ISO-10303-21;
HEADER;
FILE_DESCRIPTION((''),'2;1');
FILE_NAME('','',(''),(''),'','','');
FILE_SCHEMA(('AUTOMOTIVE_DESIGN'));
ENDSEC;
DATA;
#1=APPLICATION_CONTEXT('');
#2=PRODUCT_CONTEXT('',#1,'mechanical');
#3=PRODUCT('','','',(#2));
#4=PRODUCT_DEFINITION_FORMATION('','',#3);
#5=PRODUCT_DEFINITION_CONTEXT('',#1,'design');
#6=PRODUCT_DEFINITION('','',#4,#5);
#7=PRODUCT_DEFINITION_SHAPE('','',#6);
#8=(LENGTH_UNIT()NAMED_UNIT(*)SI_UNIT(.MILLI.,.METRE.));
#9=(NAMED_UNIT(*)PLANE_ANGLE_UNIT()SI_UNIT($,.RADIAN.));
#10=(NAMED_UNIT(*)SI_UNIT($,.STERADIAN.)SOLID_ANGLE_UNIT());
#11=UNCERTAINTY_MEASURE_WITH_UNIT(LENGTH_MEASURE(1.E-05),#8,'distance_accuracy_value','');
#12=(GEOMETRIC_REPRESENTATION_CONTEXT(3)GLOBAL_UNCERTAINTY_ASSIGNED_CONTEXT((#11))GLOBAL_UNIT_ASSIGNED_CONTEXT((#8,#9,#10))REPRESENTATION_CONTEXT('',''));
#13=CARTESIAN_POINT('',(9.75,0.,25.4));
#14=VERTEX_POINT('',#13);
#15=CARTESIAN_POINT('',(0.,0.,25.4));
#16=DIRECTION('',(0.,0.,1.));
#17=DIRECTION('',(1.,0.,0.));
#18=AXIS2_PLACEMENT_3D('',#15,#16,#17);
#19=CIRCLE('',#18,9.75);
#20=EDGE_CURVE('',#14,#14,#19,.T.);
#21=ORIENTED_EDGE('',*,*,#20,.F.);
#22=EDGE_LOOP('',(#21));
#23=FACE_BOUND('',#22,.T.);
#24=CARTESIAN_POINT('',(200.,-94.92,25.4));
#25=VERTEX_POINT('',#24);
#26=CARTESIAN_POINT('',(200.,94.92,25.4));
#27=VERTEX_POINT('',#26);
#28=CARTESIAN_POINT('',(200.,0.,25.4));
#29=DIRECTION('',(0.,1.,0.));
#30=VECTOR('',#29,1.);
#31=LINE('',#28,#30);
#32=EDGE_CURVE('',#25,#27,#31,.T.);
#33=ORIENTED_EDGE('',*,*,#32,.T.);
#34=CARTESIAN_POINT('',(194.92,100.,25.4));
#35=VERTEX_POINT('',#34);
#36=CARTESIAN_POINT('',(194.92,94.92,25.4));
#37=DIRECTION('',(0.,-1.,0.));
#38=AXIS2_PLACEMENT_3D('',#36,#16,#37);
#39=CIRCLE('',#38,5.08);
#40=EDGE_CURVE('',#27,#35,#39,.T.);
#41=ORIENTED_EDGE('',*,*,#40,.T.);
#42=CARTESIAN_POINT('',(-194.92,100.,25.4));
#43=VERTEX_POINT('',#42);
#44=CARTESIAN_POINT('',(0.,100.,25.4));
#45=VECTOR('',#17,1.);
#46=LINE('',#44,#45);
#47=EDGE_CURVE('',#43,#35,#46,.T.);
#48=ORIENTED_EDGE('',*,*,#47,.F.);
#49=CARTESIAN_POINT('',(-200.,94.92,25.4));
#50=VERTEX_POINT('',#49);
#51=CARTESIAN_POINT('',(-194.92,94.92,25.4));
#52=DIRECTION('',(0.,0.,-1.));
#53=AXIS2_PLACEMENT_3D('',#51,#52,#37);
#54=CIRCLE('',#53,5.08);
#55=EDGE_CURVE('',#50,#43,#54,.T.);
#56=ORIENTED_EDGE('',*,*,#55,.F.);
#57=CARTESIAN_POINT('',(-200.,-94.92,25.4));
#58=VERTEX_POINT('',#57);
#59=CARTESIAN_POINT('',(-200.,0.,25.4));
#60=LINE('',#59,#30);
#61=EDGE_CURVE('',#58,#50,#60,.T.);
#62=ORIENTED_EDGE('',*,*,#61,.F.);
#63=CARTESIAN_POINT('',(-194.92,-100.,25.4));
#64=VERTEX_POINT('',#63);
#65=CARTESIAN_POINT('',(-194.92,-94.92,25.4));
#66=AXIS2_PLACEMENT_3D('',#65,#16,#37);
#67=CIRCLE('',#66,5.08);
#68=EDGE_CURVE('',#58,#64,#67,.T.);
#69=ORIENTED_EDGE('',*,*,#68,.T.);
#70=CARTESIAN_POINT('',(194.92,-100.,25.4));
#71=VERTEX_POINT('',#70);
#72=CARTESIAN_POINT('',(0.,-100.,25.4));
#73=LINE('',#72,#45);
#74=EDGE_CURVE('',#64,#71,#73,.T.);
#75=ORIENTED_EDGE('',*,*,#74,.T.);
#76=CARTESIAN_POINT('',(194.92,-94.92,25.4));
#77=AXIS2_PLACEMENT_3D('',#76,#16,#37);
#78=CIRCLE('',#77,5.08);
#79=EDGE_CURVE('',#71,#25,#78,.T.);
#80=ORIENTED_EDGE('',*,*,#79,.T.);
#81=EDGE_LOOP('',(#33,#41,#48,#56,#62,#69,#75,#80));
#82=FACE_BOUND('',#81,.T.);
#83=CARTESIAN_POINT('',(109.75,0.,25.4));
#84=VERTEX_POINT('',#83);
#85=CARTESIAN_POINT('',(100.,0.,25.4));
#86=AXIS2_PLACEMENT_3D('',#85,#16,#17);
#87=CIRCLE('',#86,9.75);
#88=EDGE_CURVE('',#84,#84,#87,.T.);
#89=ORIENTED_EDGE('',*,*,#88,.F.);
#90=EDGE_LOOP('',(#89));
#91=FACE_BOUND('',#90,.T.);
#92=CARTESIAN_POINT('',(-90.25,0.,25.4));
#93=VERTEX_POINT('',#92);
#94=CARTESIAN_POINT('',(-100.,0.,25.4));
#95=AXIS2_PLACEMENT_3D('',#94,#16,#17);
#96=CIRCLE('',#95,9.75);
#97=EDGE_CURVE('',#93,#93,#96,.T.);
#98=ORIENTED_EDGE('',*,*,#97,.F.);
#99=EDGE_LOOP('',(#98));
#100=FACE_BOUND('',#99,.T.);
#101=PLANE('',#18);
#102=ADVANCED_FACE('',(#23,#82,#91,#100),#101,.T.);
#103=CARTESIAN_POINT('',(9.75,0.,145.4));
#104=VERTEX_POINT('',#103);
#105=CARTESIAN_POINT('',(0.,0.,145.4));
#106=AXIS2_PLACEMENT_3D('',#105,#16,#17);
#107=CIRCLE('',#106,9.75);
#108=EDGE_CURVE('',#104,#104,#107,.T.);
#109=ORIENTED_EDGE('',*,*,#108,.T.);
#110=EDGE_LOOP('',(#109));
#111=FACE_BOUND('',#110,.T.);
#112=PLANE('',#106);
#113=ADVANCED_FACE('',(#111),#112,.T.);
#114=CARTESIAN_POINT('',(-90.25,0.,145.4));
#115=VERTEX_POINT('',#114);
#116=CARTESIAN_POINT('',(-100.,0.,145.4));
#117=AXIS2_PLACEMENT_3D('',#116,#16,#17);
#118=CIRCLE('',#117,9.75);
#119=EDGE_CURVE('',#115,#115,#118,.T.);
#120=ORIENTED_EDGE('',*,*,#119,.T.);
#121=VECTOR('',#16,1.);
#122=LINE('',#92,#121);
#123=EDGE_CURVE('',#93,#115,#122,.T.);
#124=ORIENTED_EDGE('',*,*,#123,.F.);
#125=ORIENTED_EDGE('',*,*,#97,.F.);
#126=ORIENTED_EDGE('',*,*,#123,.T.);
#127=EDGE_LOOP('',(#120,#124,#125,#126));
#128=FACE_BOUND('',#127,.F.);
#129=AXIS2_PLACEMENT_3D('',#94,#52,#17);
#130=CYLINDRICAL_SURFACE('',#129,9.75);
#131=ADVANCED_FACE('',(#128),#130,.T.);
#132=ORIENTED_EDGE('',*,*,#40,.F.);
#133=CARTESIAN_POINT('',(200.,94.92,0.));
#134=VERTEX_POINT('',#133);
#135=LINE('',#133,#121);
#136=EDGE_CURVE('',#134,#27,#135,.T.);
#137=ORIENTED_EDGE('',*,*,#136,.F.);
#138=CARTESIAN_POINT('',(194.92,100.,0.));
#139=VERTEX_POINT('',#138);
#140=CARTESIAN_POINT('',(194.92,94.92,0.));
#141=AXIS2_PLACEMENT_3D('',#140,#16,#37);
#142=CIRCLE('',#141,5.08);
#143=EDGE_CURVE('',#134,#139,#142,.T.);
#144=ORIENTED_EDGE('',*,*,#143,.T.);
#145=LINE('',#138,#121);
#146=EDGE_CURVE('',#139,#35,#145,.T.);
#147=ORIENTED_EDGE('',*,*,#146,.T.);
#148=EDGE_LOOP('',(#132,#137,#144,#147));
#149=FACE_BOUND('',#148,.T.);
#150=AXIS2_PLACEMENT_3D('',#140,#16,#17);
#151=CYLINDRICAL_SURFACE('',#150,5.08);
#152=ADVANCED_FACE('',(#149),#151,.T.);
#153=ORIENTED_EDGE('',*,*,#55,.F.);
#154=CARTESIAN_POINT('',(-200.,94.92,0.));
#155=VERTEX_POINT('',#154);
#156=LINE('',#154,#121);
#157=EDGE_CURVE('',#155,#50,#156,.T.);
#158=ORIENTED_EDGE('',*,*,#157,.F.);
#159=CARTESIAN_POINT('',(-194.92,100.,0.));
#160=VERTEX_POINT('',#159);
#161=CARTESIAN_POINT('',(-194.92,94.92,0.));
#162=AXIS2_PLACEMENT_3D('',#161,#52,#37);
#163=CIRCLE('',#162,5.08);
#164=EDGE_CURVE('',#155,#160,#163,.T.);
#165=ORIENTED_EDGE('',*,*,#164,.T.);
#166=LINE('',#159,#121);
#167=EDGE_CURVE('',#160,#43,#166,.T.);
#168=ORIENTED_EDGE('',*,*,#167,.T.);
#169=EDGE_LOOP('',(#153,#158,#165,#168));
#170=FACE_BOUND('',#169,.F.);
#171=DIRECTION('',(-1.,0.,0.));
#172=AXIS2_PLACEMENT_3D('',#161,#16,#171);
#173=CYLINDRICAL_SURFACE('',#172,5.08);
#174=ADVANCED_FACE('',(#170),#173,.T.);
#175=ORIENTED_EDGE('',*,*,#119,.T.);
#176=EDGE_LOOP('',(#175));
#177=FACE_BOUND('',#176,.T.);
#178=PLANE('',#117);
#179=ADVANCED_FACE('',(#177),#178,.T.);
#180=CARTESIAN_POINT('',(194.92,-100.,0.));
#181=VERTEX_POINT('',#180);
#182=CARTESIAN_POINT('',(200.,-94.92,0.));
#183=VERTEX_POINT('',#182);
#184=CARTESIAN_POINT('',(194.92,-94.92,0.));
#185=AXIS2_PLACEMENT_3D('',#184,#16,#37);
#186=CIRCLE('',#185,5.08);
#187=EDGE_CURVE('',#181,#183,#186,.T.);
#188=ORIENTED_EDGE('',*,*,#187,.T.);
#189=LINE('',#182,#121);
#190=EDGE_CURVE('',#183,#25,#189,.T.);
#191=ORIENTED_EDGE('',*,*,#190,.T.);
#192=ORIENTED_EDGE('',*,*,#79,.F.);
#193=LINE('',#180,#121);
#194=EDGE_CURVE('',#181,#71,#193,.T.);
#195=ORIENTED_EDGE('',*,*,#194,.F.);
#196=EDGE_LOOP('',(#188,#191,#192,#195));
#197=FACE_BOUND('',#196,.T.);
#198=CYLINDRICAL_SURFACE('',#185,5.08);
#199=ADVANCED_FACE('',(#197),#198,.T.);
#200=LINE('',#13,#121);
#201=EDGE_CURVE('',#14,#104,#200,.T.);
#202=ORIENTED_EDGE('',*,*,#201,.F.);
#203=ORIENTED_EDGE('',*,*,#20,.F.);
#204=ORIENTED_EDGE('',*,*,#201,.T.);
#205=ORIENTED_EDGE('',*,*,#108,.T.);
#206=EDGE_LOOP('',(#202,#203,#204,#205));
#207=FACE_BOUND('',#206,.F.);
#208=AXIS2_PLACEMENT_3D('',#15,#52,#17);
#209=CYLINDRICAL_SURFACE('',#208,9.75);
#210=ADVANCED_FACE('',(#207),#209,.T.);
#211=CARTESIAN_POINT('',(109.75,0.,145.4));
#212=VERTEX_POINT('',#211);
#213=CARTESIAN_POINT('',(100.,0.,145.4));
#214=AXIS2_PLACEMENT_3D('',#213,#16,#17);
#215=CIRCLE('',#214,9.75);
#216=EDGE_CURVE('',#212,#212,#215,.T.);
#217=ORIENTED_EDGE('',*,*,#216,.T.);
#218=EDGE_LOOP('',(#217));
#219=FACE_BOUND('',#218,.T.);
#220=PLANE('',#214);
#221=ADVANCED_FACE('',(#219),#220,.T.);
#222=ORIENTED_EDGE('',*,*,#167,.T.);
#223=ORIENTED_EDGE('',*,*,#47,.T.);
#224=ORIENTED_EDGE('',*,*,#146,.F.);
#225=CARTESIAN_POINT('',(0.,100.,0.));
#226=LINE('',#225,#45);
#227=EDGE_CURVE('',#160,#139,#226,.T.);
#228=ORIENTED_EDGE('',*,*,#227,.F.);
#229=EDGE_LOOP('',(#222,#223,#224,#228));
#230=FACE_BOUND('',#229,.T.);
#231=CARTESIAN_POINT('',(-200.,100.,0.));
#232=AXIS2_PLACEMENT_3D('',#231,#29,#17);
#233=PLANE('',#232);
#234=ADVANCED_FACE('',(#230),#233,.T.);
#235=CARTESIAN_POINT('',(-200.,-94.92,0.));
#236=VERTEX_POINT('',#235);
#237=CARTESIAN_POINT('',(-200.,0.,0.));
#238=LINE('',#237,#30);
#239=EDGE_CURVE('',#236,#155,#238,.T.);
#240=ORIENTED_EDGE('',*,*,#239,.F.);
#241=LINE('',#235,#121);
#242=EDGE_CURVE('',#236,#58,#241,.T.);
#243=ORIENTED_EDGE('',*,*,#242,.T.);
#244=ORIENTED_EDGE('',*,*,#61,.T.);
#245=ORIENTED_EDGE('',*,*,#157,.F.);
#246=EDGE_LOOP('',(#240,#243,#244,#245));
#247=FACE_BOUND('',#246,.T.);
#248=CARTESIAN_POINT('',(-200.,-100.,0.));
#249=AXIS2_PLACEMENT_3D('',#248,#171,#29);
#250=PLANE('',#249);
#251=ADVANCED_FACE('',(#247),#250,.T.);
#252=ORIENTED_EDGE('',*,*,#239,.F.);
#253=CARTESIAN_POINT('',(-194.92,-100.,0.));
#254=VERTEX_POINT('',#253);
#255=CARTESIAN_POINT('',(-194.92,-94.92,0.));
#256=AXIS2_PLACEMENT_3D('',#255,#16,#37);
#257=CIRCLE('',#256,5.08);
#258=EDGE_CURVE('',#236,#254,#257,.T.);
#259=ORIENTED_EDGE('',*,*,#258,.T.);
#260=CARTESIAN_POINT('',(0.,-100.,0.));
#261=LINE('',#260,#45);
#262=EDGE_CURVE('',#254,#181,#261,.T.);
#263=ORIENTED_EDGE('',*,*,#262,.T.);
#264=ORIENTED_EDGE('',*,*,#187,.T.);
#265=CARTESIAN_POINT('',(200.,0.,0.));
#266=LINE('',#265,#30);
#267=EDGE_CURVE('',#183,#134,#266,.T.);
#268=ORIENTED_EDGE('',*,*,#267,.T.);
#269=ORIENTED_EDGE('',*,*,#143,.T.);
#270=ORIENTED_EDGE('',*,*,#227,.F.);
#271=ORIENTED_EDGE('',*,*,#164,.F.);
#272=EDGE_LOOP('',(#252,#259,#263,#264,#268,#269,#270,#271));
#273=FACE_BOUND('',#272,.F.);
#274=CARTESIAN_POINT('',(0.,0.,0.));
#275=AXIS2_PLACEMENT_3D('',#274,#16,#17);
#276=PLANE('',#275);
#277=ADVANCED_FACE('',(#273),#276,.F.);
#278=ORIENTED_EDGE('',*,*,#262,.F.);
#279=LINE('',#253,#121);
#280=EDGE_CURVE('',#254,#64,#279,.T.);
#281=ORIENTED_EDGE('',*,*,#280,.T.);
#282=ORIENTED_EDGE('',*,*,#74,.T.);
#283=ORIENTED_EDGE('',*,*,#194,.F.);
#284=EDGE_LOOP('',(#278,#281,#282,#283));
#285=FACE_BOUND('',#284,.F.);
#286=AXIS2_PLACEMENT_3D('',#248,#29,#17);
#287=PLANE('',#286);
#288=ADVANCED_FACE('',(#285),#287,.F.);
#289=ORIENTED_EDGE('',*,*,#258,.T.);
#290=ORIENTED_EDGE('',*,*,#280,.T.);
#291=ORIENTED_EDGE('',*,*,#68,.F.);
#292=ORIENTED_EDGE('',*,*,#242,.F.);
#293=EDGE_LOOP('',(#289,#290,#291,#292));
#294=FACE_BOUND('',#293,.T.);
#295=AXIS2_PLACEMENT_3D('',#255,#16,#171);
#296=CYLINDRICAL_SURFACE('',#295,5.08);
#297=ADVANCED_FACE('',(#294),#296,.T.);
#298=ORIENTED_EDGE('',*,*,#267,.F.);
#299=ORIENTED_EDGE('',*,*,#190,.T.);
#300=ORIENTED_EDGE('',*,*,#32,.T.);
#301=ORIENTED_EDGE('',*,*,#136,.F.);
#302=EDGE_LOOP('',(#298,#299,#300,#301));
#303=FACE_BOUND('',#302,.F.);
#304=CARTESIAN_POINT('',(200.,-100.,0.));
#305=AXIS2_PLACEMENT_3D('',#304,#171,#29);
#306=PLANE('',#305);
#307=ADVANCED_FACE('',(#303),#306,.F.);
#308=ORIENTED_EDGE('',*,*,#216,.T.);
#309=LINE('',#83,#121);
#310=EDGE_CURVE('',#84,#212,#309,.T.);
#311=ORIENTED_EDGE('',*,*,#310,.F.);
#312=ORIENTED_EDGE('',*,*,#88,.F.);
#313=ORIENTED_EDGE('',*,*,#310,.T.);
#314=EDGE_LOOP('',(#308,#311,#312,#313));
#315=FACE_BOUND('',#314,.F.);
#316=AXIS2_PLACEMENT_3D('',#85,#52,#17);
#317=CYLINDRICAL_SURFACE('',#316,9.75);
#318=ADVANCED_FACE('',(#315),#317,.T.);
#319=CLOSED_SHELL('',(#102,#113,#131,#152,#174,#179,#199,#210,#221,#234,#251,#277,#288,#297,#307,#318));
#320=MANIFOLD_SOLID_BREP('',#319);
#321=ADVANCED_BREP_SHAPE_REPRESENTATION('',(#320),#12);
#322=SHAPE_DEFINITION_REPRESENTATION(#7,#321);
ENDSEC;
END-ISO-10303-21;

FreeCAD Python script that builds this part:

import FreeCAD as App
import Part
import Sketcher
from FreeCAD import Vector


def edges_at(feature, points):
    """Names of the edges that pass closest to the given points."""
    edges = feature.Shape.Edges
    near = lambda p: min(range(len(edges)), key=lambda i: edges[i].distToShape(Part.Vertex(*p))[0])
    return sorted({f"Edge{near(p) + 1}" for p in points})

doc = App.newDocument("Part")
body = doc.addObject("PartDesign::Body", "Body")

sketch1 = body.newObject("Sketcher::SketchObject", "Sketch")
sketch1.AttachmentSupport = (doc.getObject("XY_Plane"), [""])
sketch1.MapMode = "FlatFace"
sketch1.addGeometry([
    Part.LineSegment(Vector(-200, 100, 0), Vector(-200, -100, 0)),
    Part.LineSegment(Vector(-200, -100, 0), Vector(200, -100, 0)),
    Part.LineSegment(Vector(200, -100, 0), Vector(200, 100, 0)),
    Part.LineSegment(Vector(200, 100, 0), Vector(-200, 100, 0)),
], False)
sketch1.addConstraint([
    Sketcher.Constraint("Coincident", 0, 2, 1, 1),
    Sketcher.Constraint("Coincident", 1, 2, 2, 1),
    Sketcher.Constraint("Coincident", 2, 2, 3, 1),
    Sketcher.Constraint("Coincident", 3, 2, 0, 1),
    Sketcher.Constraint("Vertical", 0),
    Sketcher.Constraint("Horizontal", 1),
    Sketcher.Constraint("Vertical", 2),
    Sketcher.Constraint("Horizontal", 3),
    Sketcher.Constraint("Symmetric", 0, 2, 2, 2, -1, 1),
    Sketcher.Constraint("DistanceX", 1, 1, 1, 2, 400.0),
    Sketcher.Constraint("DistanceY", 0, 2, 0, 1, 200.0),
])
pad1 = body.newObject("PartDesign::Pad", "Pad")
pad1.Profile = sketch1
pad1.Length = 25.4
doc.recompute()

fillet = body.newObject("PartDesign::Fillet", "Fillet")
fillet.Base = (pad1, edges_at(pad1, [
    (200, 100, 12.7),
    (200, -100, 12.7),
    (-200, 100, 12.7),
    (-200, -100, 12.7),
]))
fillet.Radius = 5.08

sketch2 = body.newObject("Sketcher::SketchObject", "Sketch001")
sketch2.AttachmentSupport = (doc.getObject("XY_Plane"), [""])
sketch2.MapMode = "FlatFace"
sketch2.AttachmentOffset = App.Placement(Vector(0, 0, 25.4), App.Rotation())
sketch2.addGeometry([
    Part.Circle(Vector(-100, 0, 0), Vector(0, 0, 1), 10),
    Part.Circle(Vector(0, 0, 0), Vector(0, 0, 1), 10),
    Part.Circle(Vector(100, 0, 0), Vector(0, 0, 1), 10),
], False)
sketch2.addConstraint([
    Sketcher.Constraint("Coincident", 1, 3, -1, 1),
    Sketcher.Constraint("Equal", 0, 1),
    Sketcher.Constraint("Equal", 1, 2),
    Sketcher.Constraint("Symmetric", 0, 3, 2, 3, -1, 1),
    Sketcher.Constraint("PointOnObject", 0, 3, -1),
    Sketcher.Constraint("Diameter", 0, 19.5),
    Sketcher.Constraint("DistanceX", 0, 3, -1, 1, 100.0),
])
pad2 = body.newObject("PartDesign::Pad", "Pad001")
pad2.Profile = sketch2
pad2.Length = 120

doc.recompute()
